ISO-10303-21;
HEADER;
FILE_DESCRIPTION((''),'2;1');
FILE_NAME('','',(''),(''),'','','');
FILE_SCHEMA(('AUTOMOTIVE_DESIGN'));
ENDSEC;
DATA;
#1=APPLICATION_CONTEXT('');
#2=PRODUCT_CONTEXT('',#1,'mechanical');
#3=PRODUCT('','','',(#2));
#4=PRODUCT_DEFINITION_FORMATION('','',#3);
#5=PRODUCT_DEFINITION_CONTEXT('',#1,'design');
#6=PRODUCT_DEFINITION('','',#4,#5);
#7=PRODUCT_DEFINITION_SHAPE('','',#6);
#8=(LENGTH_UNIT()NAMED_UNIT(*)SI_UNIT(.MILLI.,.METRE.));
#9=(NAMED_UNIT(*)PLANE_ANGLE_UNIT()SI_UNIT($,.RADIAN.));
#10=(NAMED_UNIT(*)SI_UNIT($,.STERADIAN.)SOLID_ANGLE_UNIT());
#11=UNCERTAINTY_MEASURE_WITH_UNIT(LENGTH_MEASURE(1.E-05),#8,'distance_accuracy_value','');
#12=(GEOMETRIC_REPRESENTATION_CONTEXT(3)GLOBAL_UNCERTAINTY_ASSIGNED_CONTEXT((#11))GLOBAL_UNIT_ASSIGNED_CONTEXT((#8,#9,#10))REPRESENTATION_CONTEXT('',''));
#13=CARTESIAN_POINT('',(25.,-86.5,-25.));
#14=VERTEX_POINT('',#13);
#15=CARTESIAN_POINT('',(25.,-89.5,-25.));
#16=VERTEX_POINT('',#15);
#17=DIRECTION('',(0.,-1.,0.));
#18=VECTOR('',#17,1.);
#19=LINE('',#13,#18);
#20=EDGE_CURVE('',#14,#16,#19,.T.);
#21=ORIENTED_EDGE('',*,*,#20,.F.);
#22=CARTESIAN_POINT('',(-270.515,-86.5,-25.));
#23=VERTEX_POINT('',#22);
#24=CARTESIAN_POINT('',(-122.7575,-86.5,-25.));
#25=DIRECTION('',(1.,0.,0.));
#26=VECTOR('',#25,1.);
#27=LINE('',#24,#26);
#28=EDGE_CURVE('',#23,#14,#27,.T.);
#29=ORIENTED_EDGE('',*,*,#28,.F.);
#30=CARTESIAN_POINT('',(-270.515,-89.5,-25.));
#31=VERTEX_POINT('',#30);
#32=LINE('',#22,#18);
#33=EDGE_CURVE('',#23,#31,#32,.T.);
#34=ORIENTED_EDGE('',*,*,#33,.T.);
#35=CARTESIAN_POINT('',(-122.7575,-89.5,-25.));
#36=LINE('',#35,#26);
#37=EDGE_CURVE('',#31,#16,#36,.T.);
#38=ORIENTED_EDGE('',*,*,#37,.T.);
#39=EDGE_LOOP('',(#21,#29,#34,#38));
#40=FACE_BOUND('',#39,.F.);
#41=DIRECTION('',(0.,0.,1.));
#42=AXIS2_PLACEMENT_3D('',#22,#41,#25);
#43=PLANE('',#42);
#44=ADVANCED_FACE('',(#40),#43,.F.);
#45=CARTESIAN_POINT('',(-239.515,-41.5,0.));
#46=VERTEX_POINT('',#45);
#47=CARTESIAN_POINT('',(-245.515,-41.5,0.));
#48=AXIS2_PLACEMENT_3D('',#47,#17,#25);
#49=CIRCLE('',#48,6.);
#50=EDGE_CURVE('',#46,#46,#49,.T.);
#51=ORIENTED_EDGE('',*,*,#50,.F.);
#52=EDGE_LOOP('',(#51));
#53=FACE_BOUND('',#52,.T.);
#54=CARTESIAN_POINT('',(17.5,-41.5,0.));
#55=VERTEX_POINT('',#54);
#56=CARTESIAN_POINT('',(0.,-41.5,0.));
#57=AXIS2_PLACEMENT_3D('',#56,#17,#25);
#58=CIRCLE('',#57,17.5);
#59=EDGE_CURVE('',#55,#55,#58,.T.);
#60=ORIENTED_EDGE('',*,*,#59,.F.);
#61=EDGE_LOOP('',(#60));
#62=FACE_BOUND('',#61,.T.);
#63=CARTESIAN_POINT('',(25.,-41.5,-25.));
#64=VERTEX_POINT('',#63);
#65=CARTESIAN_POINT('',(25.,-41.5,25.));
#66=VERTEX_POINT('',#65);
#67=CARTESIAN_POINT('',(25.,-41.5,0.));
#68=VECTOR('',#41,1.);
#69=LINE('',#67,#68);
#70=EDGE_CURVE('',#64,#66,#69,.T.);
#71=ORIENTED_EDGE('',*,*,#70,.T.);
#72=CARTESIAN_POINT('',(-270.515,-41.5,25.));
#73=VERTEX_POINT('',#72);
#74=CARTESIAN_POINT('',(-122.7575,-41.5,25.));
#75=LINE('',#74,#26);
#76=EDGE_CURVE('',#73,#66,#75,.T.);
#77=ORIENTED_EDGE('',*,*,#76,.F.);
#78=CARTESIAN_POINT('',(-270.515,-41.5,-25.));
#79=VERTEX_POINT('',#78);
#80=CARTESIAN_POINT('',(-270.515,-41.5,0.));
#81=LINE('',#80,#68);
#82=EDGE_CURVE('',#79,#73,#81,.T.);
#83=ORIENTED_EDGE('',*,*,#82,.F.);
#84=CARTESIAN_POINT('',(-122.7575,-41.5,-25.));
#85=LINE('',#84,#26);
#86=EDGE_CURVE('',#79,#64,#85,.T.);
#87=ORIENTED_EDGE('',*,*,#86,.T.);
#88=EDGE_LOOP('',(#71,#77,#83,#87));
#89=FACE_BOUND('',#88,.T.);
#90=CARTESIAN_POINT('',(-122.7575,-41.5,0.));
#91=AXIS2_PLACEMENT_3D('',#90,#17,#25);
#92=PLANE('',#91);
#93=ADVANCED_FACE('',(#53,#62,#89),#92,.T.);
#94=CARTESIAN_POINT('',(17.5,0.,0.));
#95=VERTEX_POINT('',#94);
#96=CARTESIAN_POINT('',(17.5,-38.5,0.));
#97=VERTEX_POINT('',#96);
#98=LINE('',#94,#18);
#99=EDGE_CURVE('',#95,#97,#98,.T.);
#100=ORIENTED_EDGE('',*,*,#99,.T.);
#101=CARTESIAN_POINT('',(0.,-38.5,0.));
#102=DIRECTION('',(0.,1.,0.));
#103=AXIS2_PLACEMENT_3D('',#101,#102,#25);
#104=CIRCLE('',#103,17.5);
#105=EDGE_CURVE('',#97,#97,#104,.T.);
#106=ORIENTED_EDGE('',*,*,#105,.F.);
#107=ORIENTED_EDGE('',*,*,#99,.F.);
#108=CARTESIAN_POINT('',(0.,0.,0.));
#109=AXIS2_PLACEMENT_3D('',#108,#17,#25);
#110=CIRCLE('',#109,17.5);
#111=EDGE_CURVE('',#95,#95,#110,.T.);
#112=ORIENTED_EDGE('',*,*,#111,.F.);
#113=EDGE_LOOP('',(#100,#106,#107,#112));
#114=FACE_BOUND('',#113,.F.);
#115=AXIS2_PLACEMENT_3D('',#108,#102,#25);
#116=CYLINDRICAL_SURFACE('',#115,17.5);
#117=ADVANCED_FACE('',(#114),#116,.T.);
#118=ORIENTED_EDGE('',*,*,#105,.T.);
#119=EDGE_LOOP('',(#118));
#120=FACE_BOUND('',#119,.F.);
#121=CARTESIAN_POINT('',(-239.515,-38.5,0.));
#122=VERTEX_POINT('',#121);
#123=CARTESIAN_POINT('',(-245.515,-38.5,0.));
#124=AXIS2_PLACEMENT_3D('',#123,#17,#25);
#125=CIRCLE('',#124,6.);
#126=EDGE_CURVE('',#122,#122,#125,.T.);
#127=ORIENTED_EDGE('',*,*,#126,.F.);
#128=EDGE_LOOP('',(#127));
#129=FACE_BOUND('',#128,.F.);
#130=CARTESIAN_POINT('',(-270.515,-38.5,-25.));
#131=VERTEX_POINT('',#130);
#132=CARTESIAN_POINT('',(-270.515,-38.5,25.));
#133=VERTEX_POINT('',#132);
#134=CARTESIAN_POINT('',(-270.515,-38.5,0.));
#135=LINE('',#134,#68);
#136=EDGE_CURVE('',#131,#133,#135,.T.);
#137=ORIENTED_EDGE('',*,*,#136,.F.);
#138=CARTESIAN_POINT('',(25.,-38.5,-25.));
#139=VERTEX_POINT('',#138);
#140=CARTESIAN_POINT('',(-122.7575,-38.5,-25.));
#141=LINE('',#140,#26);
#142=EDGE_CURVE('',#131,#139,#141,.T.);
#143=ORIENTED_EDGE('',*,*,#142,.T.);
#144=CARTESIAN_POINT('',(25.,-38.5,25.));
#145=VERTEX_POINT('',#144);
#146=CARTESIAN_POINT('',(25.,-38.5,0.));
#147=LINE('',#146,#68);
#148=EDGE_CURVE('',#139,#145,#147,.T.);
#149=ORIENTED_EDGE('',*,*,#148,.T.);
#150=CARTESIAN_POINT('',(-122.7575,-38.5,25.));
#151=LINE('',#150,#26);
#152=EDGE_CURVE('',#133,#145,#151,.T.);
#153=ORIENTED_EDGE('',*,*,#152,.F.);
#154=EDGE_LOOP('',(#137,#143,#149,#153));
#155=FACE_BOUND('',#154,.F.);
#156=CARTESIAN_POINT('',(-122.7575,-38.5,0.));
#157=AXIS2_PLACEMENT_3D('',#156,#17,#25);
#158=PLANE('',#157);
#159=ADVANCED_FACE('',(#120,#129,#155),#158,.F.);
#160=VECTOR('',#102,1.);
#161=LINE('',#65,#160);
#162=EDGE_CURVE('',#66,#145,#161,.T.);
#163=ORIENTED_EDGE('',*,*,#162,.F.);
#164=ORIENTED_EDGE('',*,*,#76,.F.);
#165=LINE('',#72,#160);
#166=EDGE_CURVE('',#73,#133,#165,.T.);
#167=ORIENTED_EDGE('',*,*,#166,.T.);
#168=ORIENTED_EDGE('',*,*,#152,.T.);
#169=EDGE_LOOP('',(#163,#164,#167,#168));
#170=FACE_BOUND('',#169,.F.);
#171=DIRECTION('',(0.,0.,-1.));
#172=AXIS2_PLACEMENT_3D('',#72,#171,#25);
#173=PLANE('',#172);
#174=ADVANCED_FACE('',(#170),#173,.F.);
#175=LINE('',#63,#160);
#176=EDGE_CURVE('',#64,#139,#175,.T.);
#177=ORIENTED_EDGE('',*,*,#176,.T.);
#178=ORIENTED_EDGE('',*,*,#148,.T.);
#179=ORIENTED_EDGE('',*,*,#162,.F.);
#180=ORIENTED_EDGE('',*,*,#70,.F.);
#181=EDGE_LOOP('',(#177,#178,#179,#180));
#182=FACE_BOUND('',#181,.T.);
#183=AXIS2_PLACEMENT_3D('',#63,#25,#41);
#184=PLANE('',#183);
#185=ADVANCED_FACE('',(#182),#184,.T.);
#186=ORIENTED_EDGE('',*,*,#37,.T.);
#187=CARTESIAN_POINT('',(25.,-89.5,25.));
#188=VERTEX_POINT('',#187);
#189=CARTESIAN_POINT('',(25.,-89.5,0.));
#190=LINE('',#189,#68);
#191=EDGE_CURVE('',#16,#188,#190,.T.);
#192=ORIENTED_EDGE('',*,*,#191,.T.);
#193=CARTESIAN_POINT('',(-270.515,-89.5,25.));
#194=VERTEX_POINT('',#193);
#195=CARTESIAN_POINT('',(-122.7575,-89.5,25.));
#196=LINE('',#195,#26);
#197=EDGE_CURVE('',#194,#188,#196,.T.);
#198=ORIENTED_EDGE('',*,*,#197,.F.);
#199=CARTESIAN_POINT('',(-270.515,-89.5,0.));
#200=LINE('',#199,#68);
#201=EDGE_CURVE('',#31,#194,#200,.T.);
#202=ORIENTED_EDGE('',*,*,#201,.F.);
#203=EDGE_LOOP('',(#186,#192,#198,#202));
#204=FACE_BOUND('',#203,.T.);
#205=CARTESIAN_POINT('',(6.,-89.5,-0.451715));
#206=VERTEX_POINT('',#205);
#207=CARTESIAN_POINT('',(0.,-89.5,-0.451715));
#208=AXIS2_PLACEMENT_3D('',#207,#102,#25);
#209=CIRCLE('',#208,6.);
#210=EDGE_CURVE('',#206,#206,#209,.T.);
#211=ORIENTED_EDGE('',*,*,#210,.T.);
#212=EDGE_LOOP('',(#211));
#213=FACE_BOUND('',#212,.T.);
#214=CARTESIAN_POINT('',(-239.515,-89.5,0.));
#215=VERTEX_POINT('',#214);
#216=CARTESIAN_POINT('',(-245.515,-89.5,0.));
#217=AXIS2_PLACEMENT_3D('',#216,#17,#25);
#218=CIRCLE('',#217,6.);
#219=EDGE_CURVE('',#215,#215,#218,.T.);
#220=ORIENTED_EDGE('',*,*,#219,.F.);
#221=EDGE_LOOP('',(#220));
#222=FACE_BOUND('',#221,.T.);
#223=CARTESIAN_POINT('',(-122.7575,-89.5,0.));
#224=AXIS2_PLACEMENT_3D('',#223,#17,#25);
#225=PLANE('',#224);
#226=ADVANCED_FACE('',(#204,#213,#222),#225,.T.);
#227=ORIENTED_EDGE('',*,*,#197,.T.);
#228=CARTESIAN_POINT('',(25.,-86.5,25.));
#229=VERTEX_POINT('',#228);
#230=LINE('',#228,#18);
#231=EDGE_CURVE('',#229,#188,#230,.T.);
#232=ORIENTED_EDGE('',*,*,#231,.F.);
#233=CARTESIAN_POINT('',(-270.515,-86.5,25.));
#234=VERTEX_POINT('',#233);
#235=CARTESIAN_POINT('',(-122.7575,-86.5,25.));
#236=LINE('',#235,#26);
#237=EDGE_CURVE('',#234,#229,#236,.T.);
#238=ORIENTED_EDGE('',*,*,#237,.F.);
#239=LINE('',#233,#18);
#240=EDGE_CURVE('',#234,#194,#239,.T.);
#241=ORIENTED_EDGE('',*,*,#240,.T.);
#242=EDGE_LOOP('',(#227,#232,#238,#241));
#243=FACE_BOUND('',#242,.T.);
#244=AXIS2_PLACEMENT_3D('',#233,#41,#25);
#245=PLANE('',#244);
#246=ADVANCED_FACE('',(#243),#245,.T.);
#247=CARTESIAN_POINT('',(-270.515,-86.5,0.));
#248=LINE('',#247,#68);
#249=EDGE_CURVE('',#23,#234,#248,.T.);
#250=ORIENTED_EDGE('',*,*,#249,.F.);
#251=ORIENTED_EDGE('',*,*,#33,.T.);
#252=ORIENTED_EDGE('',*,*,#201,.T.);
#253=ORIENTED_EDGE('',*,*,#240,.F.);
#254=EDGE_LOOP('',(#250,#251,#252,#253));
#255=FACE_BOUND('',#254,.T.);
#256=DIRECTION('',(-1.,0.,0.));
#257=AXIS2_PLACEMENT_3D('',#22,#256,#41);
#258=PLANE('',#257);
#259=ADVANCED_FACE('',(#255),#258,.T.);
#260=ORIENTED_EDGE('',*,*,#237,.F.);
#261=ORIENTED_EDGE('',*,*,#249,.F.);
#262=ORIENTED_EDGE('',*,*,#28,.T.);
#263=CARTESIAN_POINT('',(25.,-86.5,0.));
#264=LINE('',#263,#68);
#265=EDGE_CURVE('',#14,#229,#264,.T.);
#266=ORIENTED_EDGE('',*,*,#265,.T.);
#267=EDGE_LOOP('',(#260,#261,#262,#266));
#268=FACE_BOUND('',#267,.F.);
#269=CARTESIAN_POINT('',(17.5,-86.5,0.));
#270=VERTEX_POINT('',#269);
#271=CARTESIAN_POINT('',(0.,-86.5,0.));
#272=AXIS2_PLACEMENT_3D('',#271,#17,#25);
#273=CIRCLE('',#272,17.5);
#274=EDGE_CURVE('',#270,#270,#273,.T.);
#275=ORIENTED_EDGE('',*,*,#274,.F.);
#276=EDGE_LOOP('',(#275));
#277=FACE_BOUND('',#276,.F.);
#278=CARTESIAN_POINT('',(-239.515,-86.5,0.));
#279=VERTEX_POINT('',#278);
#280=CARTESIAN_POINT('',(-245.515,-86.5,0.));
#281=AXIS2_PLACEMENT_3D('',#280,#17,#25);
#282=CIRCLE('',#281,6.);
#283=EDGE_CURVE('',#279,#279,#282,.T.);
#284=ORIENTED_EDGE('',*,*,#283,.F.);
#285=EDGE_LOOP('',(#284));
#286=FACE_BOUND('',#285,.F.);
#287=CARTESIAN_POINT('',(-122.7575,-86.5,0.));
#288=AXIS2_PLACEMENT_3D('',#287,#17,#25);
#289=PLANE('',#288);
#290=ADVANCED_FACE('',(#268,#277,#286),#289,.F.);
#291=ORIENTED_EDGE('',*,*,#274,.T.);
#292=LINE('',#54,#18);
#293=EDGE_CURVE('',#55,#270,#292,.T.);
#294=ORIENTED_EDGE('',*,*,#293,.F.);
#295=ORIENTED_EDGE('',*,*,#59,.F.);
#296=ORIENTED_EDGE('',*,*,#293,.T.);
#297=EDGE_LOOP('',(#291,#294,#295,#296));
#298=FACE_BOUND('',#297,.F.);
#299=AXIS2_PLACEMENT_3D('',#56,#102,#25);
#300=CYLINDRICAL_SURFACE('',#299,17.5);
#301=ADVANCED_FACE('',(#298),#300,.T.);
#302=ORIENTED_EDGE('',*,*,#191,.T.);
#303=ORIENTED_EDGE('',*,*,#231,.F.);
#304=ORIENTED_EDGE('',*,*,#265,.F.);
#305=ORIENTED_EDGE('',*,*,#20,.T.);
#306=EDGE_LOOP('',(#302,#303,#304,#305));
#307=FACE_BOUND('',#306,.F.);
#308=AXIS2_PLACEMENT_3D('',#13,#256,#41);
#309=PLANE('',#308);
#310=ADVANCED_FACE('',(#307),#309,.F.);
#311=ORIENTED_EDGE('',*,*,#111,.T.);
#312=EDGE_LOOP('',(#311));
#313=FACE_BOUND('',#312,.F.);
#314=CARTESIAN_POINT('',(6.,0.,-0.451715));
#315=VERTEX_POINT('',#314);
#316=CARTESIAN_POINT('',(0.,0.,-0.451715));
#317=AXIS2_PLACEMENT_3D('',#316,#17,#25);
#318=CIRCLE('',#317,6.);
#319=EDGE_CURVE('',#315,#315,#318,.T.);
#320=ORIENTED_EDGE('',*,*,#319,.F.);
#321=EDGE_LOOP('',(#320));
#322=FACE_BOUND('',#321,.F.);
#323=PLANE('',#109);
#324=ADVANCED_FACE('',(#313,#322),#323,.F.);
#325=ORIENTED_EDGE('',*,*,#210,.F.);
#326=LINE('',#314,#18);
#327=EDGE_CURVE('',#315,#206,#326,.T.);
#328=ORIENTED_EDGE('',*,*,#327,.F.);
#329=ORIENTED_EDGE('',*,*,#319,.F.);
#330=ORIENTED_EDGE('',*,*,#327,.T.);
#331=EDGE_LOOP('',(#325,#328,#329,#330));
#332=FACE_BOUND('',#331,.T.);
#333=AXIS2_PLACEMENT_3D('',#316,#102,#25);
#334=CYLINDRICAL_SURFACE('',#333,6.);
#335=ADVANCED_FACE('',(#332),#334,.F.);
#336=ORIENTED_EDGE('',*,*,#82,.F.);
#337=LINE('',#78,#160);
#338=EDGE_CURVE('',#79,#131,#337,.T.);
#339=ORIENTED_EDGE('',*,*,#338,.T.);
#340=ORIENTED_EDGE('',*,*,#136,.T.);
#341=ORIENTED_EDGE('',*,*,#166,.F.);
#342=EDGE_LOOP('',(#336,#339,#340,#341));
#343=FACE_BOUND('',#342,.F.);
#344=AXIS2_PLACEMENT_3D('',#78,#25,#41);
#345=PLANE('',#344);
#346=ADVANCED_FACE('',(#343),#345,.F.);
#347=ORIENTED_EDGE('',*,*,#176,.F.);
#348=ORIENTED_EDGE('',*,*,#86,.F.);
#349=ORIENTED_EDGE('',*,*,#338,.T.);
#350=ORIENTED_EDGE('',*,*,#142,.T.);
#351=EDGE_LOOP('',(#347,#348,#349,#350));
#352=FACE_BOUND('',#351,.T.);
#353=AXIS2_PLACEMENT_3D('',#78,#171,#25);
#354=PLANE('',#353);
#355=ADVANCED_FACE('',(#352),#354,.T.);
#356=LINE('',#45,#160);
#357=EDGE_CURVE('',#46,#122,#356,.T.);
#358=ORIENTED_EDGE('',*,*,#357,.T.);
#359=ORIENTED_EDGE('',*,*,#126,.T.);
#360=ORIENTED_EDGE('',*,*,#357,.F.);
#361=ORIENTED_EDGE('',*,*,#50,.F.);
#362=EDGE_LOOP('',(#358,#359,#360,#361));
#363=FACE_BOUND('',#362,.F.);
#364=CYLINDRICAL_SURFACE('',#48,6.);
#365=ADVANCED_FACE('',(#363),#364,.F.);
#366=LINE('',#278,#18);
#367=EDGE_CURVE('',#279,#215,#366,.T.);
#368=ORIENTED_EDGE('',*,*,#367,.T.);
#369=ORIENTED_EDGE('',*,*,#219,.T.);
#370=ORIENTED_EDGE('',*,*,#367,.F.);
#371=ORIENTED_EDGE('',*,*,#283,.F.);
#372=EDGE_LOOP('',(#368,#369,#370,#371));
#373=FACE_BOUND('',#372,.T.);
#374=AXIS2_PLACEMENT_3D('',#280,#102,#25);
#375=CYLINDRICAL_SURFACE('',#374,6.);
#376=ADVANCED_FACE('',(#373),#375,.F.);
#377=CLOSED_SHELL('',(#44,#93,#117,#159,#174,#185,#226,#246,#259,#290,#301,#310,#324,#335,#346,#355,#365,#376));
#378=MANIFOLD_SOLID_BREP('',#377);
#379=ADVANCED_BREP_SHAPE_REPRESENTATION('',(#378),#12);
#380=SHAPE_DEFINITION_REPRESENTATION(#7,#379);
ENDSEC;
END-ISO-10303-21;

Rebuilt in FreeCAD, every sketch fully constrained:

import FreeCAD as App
import Part
import Sketcher

V = App.Vector
Q = App.Units.Quantity


def add_polygon(sketch, points):
    """Adds a closed chain of lines whose ends are joined by coincident constraints."""
    first, n = sketch.GeometryCount, len(points)
    for a, b in zip(points, points[1:] + points[:1]):
        sketch.addGeometry(Part.LineSegment(App.Vector(*a, 0), App.Vector(*b, 0)), False)
    for i in range(n):
        sketch.addConstraint(Sketcher.Constraint("Coincident", first + i, 2, first + (i + 1) % n, 1))

doc = App.newDocument("Part")
body = doc.addObject("PartDesign::Body", "Body")

sketch1 = doc.addObject("Sketcher::SketchObject", "Sketch")
body.addObject(sketch1)
sketch1.AttachmentSupport = (doc.XZ_Plane, [""])
sketch1.MapMode = "FlatFace"
sketch1.addGeometry(Part.Circle(V(0, 0, 0), V(0, 0, 1), 18), False)
sketch1.addConstraint([
    Sketcher.Constraint("Coincident", 0, 3, -1, 1),
    Sketcher.Constraint("Diameter", 0, Q("35 mm")),
])
pad1 = doc.addObject("PartDesign::Pad", "Pad")
body.addObject(pad1)
pad1.Profile = sketch1
pad1.Length = 41.5

sketch2 = doc.addObject("Sketcher::SketchObject", "Sketch001")
body.addObject(sketch2)
sketch2.AttachmentSupport = (doc.XZ_Plane, [""])
sketch2.MapMode = "FlatFace"
sketch2.AttachmentOffset = App.Placement(V(0, 0, 41.5), App.Rotation())
add_polygon(sketch2, [(-271, 25), (-271, -25), (25, -25), (25, 25)])
sketch2.addGeometry(Part.Circle(V(-246, 0, 0), V(0, 0, 1), 6), False)
sketch2.addConstraint([
    Sketcher.Constraint("Vertical", 0),
    Sketcher.Constraint("Horizontal", 1),
    Sketcher.Constraint("Vertical", 2),
    Sketcher.Constraint("Horizontal", 3),
    Sketcher.Constraint("PointOnObject", 4, 3, -1),
    Sketcher.Constraint("Diameter", 4, Q("12 mm")),
    Sketcher.Constraint("DistanceY", 0, 2, 0, 1, Q("50 mm")),
    Sketcher.Constraint("DistanceY", 0, 2, -1, 1, Q("25 mm")),
    Sketcher.Constraint("DistanceX", -1, 1, 1, 2, Q("25 mm")),
    Sketcher.Constraint("DistanceX", 0, 2, 4, 3, Q("25 mm")),
    Sketcher.Constraint("DistanceX", 1, 1, 1, 2, Q("295.515 mm")),
])
pad2 = doc.addObject("PartDesign::Pad", "Pad001")
body.addObject(pad2)
pad2.Profile = sketch2
pad2.Length = 3
pad2.Reversed = True

sketch3 = doc.addObject("Sketcher::SketchObject", "Sketch002")
body.addObject(sketch3)
sketch3.AttachmentSupport = (doc.XZ_Plane, [""])
sketch3.MapMode = "FlatFace"
sketch3.AttachmentOffset = App.Placement(V(0, 0, 41.5), App.Rotation())
sketch3.addGeometry(Part.Circle(V(0, 0, 0), V(0, 0, 1), 18), False)
sketch3.addConstraint([
    Sketcher.Constraint("Coincident", 0, 3, -1, 1),
    Sketcher.Constraint("Diameter", 0, Q("35 mm")),
])
pad3 = doc.addObject("PartDesign::Pad", "Pad002")
body.addObject(pad3)
pad3.Profile = sketch3
pad3.Length = 45

sketch4 = doc.addObject("Sketcher::SketchObject", "Sketch003")
body.addObject(sketch4)
sketch4.AttachmentSupport = (doc.XZ_Plane, [""])
sketch4.MapMode = "FlatFace"
sketch4.AttachmentOffset = App.Placement(V(0, 0, 86.5), App.Rotation())
add_polygon(sketch4, [(-271, 25), (-271, -25), (25, -25), (25, 25)])
sketch4.addGeometry(Part.Circle(V(-246, 0, 0), V(0, 0, 1), 6), False)
sketch4.addConstraint([
    Sketcher.Constraint("Vertical", 0),
    Sketcher.Constraint("Horizontal", 1),
    Sketcher.Constraint("Vertical", 2),
    Sketcher.Constraint("Horizontal", 3),
    Sketcher.Constraint("PointOnObject", 4, 3, -1),
    Sketcher.Constraint("Diameter", 4, Q("12 mm")),
    Sketcher.Constraint("DistanceY", 0, 2, 0, 1, Q("50 mm")),
    Sketcher.Constraint("DistanceY", 0, 2, -1, 1, Q("25 mm")),
    Sketcher.Constraint("DistanceX", -1, 1, 1, 2, Q("25 mm")),
    Sketcher.Constraint("DistanceX", 0, 2, 4, 3, Q("25 mm")),
    Sketcher.Constraint("DistanceX", 1, 1, 1, 2, Q("295.515 mm")),
])
pad4 = doc.addObject("PartDesign::Pad", "Pad003")
body.addObject(pad4)
pad4.Profile = sketch4
pad4.Length = 3

sketch5 = doc.addObject("Sketcher::SketchObject", "Sketch004")
body.addObject(sketch5)
sketch5.AttachmentSupport = (doc.XZ_Plane, [""])
sketch5.MapMode = "FlatFace"
sketch5.addGeometry(Part.Circle(V(0, 0, 0), V(0, 0, 1), 6), False)
sketch5.addConstraint([
    Sketcher.Constraint("PointOnObject", 0, 3, -2),
    Sketcher.Constraint("Diameter", 0, Q("12 mm")),
    Sketcher.Constraint("DistanceY", 0, 3, -1, 1, Q("0.451715 mm")),
])
pocket1 = doc.addObject("PartDesign::Pocket", "Pocket")
body.addObject(pocket1)
pocket1.Profile = sketch5
pocket1.Type = "ThroughAll"
pocket1.Reversed = True

doc.recompute()
